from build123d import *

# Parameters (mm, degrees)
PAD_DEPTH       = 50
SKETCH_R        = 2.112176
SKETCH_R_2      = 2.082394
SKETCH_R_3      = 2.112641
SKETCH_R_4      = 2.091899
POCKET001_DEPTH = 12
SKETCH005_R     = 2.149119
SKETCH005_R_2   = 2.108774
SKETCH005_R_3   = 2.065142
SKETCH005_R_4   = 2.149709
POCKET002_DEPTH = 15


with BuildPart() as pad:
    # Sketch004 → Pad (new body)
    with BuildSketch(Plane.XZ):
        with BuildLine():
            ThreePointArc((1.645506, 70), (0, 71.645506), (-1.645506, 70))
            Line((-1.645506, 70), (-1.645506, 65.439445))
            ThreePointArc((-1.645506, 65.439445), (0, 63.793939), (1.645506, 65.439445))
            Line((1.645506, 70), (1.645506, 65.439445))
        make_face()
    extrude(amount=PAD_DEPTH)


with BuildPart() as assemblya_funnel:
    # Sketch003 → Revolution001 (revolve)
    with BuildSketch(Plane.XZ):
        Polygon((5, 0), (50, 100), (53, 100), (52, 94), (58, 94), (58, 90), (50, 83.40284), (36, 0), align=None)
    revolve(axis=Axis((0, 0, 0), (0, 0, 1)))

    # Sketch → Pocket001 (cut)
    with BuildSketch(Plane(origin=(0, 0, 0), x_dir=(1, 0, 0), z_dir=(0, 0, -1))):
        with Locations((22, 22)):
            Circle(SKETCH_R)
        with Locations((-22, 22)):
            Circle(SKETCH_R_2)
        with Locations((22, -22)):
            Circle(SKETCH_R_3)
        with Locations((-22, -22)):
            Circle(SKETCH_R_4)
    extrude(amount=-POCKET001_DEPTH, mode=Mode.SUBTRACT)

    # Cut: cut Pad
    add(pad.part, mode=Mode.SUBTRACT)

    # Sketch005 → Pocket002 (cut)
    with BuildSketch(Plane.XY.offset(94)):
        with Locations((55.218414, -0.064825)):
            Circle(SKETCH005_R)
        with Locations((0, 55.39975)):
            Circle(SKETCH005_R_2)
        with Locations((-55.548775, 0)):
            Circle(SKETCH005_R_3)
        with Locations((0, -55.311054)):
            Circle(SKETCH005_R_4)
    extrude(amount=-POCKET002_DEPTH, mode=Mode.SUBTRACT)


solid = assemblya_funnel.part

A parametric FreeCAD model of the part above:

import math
import FreeCAD as App
import Part
import Sketcher
from FreeCAD import Vector

doc = App.newDocument("Part")
params = doc.addObject("Spreadsheet::Sheet", "Params")
for row, (alias, value) in enumerate([
    ("pad1_length", "50 mm"),
    ("sketch2_width", "31 mm"),
    ("sketch2_width2", "6 mm"),
    ("sketch2_width3", "3 mm"),
    ("sketch2_height", "4 mm"),
    ("revolution_angle", "360 deg"),
    ("pocket1_length", "12 mm"),
    ("pocket2_length", "15 mm"),
], start=1):
    params.set(f"A{row}", alias)
    params.set(f"B{row}", "=" + value)
    params.setAlias(f"B{row}", alias)

body = doc.addObject("PartDesign::Body", "Body")

# Sketch on XZ plane
sketch1 = body.newObject("Sketcher::SketchObject", "Sketch")
sketch1.AttachmentSupport = (doc.getObject("XZ_Plane"), [""])
sketch1.MapMode = "FlatFace"
sketch1.addGeometry([
    Part.ArcOfCircle(Part.Circle(Vector(0, 70, 0), Vector(0, 0, 1), 1.645506), math.radians(0), math.radians(180)),
    Part.LineSegment(Vector(-1.645506, 70, 0), Vector(-1.645506, 65.439445, 0)),
    Part.ArcOfCircle(Part.Circle(Vector(0, 65.439445, 0), Vector(0, 0, 1), 1.645506), math.radians(180), math.radians(360)),
    Part.LineSegment(Vector(1.645506, 65.439445, 0), Vector(1.645506, 70, 0)),
], False)
sketch1.addConstraint([
    Sketcher.Constraint("Tangent", 0, 2, 1, 1),
    Sketcher.Constraint("Tangent", 1, 2, 2, 1),
    Sketcher.Constraint("Tangent", 2, 2, 3, 1),
    Sketcher.Constraint("Tangent", 3, 2, 0, 1),
    Sketcher.Constraint("Vertical", 1),
    Sketcher.Constraint("Vertical", 3),
    Sketcher.Constraint("PointOnObject", 0, 3, -2),
    Sketcher.Constraint("DistanceY", -1, 1, 0, 3, 70.0),
    Sketcher.Constraint("Radius", 0, 1.645506),
    Sketcher.Constraint("DistanceY", 1, 2, 1, 1, 4.560555),
])
pad1 = body.newObject("PartDesign::Pad", "Pad")
pad1.Profile = sketch1
pad1.setExpression("Length", "Params.pad1_length")
body2 = doc.addObject("PartDesign::Body", "Body001")

# Sketch on XZ plane
sketch2 = body2.newObject("Sketcher::SketchObject", "Sketch001")
sketch2.AttachmentSupport = (doc.getObject("XZ_Plane001"), [""])
sketch2.MapMode = "FlatFace"
sketch2.addGeometry([
    Part.LineSegment(Vector(50, 100, 0), Vector(5, 0, 0)),  # 0
    Part.LineSegment(Vector(5, 0, 0), Vector(36, 0, 0)),  # 1
    Part.LineSegment(Vector(36, 0, 0), Vector(50, 83.40284, 0)),  # 2
    Part.LineSegment(Vector(50, 83.40284, 0), Vector(58, 90, 0)),  # 3
    Part.LineSegment(Vector(58, 90, 0), Vector(58, 94, 0)),  # 4
    Part.LineSegment(Vector(58, 94, 0), Vector(52, 94, 0)),  # 5
    Part.LineSegment(Vector(52, 94, 0), Vector(53, 100, 0)),  # 6
    Part.LineSegment(Vector(53, 100, 0), Vector(50, 100, 0)),  # 7
], False)
sketch2.addConstraint([
    Sketcher.Constraint("Coincident", 0, 2, 1, 1),
    Sketcher.Constraint("Coincident", 1, 2, 2, 1),
    Sketcher.Constraint("Coincident", 2, 2, 3, 1),
    Sketcher.Constraint("Coincident", 3, 2, 4, 1),
    Sketcher.Constraint("Coincident", 4, 2, 5, 1),
    Sketcher.Constraint("Coincident", 5, 2, 6, 1),
    Sketcher.Constraint("Coincident", 6, 2, 7, 1),
    Sketcher.Constraint("Coincident", 7, 2, 0, 1),
    Sketcher.Constraint("Horizontal", 1),
    Sketcher.Constraint("Vertical", 4),
    Sketcher.Constraint("Horizontal", 5),
    Sketcher.Constraint("Horizontal", 7),
    Sketcher.Constraint("PointOnObject", 0, 2, -1),
    Sketcher.Constraint("Vertical", 2, 2, 7, 2),
    Sketcher.Constraint("DistanceX", 1, 1, 1, 2, 31.0),
    Sketcher.Constraint("DistanceX", 5, 2, 5, 1, 6.0),
    Sketcher.Constraint("DistanceX", 7, 2, 7, 1, 3.0),
    Sketcher.Constraint("DistanceY", 4, 1, 4, 2, 4.0),
    Sketcher.Constraint("DistanceX", -1, 1, 0, 2, 5.0),
    Sketcher.Constraint("DistanceX", -1, 1, 2, 2, 50.0),
    Sketcher.Constraint("DistanceX", -1, 1, 3, 2, 58.0),
    Sketcher.Constraint("DistanceY", -1, 1, 3, 2, 90.0),
    Sketcher.Constraint("DistanceY", -1, 1, 6, 2, 100.0),
    Sketcher.Constraint("DistanceY", -1, 1, 2, 2, 83.40284),
])
sketch2.setExpression("Constraints[14]", "Params.sketch2_width")
sketch2.setExpression("Constraints[15]", "Params.sketch2_width2")
sketch2.setExpression("Constraints[16]", "Params.sketch2_width3")
sketch2.setExpression("Constraints[17]", "Params.sketch2_height")
revolution = body2.newObject("PartDesign::Revolution", "Revolution")
revolution.Profile = sketch2
revolution.ReferenceAxis = (sketch2, ["V_Axis"])
revolution.setExpression("Angle", "Params.revolution_angle")

# Sketch on XY plane
sketch3 = body2.newObject("Sketcher::SketchObject", "Sketch002")
sketch3.AttachmentSupport = (doc.getObject("XY_Plane001"), [""])
sketch3.MapMode = "FlatFace"
sketch3.addGeometry([
    Part.Circle(Vector(22, -22, 0), Vector(0, 0, 1), 2.112176),
    Part.Circle(Vector(-22, -22, 0), Vector(0, 0, 1), 2.082394),
    Part.Circle(Vector(22, 22, 0), Vector(0, 0, 1), 2.112641),
    Part.Circle(Vector(-22, 22, 0), Vector(0, 0, 1), 2.091899),
], False)
sketch3.addConstraint([
    Sketcher.Constraint("Symmetric", 1, 3, 2, 3, -1, 1),
    Sketcher.Constraint("Symmetric", 0, 3, 3, 3, -1, 1),
    Sketcher.Constraint("Symmetric", 0, 3, 1, 3, -2),
    Sketcher.Constraint("DistanceX", -1, 1, 0, 3, 22.0),
    Sketcher.Constraint("DistanceY", 0, 3, -1, 1, 22.0),
    Sketcher.Constraint("Diameter", 3, 4.183798),
    Sketcher.Constraint("Diameter", 0, 4.224352),
    Sketcher.Constraint("Diameter", 1, 4.164788),
    Sketcher.Constraint("Diameter", 2, 4.225282),
])
pocket1 = body2.newObject("PartDesign::Pocket", "Pocket")
pocket1.Profile = sketch3
pocket1.setExpression("Length", "Params.pocket1_length")
pocket1.Reversed = True
doc.recompute()

boolean = body2.newObject("PartDesign::Boolean", "Boolean")
boolean.Type = "Cut"
boolean.addObjects([body])

# Sketch on XY plane
sketch4 = body2.newObject("Sketcher::SketchObject", "Sketch003")
sketch4.AttachmentSupport = (doc.getObject("XY_Plane001"), [""])
sketch4.MapMode = "FlatFace"
sketch4.AttachmentOffset = App.Placement(Vector(0, 0, 94), App.Rotation())
sketch4.addGeometry([
    Part.Circle(Vector(55.218414, -0.064825, 0), Vector(0, 0, 1), 2.149119),
    Part.Circle(Vector(0, 55.39975, 0), Vector(0, 0, 1), 2.108774),
    Part.Circle(Vector(-55.548775, 0, 0), Vector(0, 0, 1), 2.065142),
    Part.Circle(Vector(0, -55.311054, 0), Vector(0, 0, 1), 2.149709),
], False)
sketch4.addConstraint([
    Sketcher.Constraint("PointOnObject", 1, 3, -2),
    Sketcher.Constraint("PointOnObject", 2, 3, -1),
    Sketcher.Constraint("PointOnObject", 3, 3, -2),
    Sketcher.Constraint("Diameter", 3, 4.299418),
    Sketcher.Constraint("Diameter", 0, 4.298238),
    Sketcher.Constraint("Diameter", 1, 4.217548),
    Sketcher.Constraint("Diameter", 2, 4.130284),
    Sketcher.Constraint("DistanceY", -1, 1, 1, 3, 55.39975),
    Sketcher.Constraint("DistanceX", 2, 3, 0, 3, 110.767189),
    Sketcher.Constraint("DistanceY", 3, 3, 0, 3, 55.246229),
    Sketcher.Constraint("DistanceX", -1, 1, 0, 3, 55.218414),
    Sketcher.Constraint("DistanceY", 0, 3, -1, 1, 0.064825),
])
pocket2 = body2.newObject("PartDesign::Pocket", "Pocket001")
pocket2.Profile = sketch4
pocket2.setExpression("Length", "Params.pocket2_length")

doc.recompute()
